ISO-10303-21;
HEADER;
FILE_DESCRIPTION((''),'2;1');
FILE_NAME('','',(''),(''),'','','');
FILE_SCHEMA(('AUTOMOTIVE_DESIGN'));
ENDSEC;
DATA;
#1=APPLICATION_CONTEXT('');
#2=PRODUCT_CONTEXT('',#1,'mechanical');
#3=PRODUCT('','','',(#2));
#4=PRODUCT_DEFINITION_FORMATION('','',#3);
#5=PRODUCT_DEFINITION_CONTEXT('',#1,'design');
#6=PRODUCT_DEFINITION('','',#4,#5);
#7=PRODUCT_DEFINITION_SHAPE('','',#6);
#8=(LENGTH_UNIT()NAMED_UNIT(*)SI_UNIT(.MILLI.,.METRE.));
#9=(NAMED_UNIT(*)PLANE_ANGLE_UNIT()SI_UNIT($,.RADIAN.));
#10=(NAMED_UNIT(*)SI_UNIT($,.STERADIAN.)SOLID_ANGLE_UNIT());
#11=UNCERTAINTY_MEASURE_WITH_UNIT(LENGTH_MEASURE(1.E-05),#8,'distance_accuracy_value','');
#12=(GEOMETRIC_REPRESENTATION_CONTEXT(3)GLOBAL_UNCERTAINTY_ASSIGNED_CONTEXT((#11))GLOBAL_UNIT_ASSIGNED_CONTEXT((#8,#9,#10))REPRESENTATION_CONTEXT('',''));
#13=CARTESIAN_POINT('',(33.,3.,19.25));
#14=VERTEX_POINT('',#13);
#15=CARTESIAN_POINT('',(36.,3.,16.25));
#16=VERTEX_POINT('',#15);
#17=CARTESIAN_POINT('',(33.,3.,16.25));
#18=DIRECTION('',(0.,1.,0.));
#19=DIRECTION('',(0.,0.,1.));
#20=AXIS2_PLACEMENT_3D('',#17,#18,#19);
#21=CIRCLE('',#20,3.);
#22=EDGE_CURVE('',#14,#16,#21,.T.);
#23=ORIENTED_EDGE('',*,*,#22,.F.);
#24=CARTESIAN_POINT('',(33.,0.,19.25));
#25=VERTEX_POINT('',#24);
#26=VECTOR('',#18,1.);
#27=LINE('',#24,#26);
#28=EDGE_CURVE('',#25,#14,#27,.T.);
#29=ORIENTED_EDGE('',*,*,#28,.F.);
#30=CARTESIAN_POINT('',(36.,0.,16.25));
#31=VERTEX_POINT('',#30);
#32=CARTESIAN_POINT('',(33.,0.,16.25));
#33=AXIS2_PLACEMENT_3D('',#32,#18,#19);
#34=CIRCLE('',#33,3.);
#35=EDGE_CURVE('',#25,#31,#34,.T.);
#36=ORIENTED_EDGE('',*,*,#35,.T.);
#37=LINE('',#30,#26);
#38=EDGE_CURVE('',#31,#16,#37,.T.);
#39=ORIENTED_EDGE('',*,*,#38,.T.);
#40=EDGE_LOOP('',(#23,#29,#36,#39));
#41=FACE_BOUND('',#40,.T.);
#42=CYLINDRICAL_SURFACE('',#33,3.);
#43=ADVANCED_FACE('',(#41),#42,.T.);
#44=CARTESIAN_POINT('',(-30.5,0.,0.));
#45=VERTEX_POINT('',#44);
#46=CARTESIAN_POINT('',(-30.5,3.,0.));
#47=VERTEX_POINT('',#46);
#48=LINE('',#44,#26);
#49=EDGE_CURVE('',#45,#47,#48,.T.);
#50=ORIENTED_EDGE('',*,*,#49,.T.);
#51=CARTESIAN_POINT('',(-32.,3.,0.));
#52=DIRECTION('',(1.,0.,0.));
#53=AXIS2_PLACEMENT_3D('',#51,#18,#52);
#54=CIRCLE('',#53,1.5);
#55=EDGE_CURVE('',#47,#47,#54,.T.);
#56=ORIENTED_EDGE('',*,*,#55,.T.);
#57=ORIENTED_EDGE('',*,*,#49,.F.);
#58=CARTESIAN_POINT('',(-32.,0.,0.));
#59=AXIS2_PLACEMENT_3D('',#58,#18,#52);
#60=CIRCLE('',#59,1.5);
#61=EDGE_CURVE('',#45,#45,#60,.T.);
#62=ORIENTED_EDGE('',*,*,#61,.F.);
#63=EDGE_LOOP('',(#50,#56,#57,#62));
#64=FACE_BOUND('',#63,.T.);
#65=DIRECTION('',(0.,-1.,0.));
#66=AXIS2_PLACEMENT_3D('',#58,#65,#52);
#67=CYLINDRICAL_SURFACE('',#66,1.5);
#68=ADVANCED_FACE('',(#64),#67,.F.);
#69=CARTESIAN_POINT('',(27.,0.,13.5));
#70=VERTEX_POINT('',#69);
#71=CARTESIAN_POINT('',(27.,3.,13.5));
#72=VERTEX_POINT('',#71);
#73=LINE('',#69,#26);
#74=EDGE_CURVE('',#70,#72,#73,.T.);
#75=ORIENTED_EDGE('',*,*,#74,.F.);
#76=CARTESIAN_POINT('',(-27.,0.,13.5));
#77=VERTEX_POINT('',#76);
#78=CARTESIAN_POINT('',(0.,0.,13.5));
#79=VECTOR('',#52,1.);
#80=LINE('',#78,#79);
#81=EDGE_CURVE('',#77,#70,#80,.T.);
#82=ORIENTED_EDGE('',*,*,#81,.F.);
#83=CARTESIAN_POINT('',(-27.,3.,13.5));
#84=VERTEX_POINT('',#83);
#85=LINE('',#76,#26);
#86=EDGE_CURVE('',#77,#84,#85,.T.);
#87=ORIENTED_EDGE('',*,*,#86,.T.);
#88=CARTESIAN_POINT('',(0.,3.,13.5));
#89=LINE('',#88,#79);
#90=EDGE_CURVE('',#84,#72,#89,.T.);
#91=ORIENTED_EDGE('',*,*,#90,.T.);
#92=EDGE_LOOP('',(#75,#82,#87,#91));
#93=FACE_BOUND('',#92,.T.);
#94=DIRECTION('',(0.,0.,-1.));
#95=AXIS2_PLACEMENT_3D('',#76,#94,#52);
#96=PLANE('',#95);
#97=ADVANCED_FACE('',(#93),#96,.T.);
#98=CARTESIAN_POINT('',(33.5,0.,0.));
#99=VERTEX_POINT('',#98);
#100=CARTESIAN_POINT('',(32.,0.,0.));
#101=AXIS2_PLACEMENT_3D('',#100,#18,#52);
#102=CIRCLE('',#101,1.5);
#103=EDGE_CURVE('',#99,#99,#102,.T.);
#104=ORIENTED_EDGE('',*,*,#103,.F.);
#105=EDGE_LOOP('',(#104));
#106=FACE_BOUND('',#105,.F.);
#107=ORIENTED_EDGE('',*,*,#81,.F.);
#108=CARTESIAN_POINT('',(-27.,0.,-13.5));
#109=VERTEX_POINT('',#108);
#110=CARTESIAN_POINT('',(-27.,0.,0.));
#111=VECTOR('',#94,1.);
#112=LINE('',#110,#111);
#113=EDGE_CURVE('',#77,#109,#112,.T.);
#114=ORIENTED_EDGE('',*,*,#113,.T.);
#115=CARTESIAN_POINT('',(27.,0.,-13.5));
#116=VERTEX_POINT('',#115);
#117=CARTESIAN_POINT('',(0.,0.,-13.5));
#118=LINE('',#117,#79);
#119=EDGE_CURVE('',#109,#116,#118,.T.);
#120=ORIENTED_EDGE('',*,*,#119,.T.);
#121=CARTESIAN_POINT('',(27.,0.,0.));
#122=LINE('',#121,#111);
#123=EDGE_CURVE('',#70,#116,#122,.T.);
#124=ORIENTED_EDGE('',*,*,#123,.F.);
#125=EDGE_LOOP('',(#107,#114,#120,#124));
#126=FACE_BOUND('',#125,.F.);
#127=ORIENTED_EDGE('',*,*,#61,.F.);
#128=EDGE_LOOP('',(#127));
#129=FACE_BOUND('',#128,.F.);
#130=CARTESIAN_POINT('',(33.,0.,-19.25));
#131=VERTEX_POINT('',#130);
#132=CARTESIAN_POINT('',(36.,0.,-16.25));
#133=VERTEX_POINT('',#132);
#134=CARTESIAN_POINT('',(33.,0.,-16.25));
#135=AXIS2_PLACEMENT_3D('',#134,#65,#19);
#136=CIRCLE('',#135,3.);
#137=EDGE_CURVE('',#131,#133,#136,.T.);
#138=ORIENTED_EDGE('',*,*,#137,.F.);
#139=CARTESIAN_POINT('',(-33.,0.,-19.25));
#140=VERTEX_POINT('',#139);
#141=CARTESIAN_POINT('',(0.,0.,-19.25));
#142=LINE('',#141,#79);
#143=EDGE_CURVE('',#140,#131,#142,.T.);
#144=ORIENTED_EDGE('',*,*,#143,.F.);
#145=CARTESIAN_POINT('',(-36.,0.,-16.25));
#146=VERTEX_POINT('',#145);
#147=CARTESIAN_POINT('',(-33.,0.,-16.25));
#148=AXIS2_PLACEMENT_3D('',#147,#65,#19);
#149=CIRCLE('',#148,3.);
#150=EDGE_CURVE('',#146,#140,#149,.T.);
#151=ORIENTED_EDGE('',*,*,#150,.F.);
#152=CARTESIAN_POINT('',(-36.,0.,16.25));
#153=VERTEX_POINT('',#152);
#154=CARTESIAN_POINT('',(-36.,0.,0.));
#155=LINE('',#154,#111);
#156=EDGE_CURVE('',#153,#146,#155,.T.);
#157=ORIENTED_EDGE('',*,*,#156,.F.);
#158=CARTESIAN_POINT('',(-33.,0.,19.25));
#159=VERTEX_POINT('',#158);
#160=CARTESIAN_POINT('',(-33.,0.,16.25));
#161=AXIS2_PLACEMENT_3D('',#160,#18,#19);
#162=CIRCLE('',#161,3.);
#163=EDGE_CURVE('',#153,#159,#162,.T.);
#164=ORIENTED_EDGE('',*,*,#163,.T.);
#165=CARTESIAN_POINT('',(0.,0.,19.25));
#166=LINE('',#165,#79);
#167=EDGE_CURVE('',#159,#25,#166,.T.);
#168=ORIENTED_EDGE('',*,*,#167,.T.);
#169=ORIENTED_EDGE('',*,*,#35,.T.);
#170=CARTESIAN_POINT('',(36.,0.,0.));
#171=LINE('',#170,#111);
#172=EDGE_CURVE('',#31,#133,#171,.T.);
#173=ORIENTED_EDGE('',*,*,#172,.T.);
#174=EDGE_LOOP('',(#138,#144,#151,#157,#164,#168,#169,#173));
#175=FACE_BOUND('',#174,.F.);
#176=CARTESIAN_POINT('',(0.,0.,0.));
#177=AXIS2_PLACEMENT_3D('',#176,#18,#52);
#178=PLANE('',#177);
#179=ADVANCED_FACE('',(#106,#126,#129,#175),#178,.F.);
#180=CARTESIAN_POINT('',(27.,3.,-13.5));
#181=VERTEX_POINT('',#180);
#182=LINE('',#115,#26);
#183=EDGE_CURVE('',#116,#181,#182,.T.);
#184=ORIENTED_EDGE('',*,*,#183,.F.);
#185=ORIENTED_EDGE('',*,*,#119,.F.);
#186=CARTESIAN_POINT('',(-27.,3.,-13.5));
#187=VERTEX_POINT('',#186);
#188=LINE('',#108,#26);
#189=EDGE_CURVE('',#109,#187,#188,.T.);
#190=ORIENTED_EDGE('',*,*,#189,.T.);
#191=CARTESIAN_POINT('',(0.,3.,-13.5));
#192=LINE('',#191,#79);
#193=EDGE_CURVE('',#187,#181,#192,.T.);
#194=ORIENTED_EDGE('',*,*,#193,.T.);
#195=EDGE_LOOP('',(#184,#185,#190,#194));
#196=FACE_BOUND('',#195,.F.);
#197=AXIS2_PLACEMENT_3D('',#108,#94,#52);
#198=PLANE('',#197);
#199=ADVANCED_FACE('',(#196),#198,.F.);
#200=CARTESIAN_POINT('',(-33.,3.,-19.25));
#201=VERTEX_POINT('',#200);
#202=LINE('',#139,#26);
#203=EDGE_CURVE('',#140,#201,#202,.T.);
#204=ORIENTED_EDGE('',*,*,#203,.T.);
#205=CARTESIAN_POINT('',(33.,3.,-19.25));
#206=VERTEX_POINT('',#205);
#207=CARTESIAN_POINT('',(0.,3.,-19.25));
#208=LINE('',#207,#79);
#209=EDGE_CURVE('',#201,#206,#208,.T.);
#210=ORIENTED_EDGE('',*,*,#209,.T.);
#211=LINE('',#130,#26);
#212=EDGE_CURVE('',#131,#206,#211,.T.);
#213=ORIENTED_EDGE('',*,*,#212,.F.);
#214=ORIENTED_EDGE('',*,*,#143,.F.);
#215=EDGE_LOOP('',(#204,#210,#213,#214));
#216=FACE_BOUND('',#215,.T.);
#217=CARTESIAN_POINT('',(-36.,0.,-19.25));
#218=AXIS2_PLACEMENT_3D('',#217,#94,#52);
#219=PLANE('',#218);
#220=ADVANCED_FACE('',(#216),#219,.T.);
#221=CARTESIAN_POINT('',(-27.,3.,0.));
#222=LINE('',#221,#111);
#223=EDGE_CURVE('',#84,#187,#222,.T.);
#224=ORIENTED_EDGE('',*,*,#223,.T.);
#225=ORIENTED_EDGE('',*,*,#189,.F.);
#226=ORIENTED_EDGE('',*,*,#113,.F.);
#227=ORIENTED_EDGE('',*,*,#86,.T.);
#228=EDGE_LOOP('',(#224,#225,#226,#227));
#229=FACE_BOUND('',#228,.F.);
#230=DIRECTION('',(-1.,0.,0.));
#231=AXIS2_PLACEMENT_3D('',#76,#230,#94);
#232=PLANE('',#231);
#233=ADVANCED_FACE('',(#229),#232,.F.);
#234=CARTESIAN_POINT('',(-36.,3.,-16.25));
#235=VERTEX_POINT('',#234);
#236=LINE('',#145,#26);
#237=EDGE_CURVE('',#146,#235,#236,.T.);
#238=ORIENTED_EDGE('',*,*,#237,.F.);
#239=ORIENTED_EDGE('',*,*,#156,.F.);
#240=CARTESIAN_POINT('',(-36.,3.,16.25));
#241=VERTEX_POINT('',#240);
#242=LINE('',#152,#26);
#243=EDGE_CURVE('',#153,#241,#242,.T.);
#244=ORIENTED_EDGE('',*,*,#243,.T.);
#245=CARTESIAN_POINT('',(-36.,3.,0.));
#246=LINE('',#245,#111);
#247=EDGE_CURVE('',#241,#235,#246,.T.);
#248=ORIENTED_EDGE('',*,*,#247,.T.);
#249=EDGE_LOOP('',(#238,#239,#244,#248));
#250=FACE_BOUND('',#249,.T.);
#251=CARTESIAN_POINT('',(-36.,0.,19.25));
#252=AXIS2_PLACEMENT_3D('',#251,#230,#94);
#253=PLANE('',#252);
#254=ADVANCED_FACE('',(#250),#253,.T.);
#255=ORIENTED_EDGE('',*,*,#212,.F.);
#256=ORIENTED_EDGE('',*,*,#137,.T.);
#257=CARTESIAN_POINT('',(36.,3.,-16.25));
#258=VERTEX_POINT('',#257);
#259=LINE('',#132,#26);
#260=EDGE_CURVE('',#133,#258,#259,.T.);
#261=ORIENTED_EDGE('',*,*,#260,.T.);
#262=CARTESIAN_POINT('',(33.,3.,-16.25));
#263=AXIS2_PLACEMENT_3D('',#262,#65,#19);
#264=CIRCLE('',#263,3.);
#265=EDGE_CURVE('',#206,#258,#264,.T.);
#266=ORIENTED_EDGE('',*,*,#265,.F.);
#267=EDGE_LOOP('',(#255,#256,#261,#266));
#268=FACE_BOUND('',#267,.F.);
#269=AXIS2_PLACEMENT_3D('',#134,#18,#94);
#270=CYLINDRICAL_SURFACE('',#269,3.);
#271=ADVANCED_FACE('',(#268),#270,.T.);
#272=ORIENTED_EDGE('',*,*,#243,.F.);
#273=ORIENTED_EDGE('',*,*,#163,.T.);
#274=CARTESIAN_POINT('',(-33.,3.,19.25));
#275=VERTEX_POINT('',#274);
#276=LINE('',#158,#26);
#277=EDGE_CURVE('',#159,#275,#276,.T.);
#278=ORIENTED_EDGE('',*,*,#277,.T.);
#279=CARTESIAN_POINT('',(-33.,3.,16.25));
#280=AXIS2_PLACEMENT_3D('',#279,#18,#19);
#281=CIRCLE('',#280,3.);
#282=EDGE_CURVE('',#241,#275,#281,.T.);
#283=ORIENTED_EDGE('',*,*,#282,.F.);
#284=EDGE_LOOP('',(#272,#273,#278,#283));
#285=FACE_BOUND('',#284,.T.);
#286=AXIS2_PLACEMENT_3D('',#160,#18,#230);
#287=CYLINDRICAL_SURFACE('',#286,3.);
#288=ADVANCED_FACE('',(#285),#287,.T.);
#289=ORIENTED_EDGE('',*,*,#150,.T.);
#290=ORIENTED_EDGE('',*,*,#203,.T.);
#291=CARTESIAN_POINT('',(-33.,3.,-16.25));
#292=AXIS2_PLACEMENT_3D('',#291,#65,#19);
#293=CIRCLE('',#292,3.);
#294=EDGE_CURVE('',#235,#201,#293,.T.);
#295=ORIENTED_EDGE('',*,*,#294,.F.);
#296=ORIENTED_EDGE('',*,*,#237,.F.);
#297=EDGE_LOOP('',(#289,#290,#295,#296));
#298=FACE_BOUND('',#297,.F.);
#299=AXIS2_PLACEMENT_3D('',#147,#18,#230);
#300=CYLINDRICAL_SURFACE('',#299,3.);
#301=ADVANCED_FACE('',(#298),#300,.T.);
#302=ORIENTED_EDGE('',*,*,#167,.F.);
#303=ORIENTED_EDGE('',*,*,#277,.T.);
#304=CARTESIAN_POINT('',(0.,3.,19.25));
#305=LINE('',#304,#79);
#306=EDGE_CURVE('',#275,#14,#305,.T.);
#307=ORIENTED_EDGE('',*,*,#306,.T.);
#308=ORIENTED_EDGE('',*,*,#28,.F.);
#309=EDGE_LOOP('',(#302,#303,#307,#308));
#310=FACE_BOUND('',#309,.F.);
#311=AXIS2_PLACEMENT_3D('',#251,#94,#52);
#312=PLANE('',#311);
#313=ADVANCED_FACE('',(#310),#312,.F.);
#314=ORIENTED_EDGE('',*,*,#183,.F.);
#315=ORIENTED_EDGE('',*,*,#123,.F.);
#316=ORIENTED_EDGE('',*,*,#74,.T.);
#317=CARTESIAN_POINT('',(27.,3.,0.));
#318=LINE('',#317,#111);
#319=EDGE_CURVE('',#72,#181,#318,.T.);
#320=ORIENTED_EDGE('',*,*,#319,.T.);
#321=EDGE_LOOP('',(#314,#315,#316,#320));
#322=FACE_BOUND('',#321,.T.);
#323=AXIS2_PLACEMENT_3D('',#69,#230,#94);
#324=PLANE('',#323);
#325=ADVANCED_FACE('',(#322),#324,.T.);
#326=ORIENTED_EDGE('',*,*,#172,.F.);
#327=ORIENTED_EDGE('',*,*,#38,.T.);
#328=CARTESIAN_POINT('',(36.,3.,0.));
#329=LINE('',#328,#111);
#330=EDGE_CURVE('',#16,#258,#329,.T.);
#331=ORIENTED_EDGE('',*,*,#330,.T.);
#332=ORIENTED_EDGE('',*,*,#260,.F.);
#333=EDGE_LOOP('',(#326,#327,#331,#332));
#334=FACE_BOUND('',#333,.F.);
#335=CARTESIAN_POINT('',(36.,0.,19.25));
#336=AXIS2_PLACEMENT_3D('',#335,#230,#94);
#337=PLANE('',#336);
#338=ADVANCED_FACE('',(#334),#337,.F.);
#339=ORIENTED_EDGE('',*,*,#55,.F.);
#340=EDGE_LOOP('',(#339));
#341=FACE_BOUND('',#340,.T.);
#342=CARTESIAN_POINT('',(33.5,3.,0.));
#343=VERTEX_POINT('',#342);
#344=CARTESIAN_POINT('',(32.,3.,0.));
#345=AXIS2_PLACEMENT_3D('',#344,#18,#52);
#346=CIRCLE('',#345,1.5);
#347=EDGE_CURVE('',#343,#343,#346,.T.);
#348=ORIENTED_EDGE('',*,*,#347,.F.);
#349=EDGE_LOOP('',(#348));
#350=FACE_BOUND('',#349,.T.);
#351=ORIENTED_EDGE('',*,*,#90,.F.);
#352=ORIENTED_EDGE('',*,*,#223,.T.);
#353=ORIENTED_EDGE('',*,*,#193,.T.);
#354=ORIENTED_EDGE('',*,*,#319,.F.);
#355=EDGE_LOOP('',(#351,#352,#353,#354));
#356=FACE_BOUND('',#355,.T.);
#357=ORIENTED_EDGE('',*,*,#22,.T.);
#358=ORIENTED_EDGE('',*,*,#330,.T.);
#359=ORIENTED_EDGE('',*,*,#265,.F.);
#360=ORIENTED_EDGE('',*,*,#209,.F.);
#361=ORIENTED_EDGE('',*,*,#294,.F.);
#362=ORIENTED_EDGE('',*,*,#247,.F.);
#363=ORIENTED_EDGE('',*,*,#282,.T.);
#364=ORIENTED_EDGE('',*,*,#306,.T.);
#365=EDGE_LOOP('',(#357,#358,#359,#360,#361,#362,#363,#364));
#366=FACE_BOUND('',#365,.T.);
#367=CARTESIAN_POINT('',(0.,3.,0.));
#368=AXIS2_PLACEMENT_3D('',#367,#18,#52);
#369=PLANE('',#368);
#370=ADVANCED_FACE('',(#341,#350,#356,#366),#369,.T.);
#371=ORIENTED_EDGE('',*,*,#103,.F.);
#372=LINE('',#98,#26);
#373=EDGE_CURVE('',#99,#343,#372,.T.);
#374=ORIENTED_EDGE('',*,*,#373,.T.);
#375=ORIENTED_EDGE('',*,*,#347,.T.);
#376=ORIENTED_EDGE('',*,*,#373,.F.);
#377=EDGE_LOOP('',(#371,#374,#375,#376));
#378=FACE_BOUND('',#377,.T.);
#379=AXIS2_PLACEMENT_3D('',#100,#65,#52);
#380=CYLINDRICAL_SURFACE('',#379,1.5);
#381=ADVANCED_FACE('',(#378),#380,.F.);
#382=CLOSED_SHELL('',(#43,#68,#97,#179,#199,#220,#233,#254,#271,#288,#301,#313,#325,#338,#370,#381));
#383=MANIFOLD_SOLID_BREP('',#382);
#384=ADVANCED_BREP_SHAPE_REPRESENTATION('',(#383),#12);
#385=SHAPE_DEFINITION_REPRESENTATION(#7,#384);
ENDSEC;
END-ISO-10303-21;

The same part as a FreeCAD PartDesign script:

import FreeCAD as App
import Part
import Sketcher


def edges_at(feature, points):
    """Names of the edges that pass closest to the given points."""
    edges = feature.Shape.Edges
    near = lambda p: min(range(len(edges)), key=lambda i: edges[i].distToShape(Part.Vertex(*p))[0])
    return sorted({f"Edge{near(p) + 1}" for p in points})


def add_polygon(sketch, points):
    """Adds a closed chain of lines whose ends are joined by coincident constraints."""
    first, n = sketch.GeometryCount, len(points)
    for a, b in zip(points, points[1:] + points[:1]):
        sketch.addGeometry(Part.LineSegment(App.Vector(*a, 0), App.Vector(*b, 0)), False)
    for i in range(n):
        sketch.addConstraint(Sketcher.Constraint("Coincident", first + i, 2, first + (i + 1) % n, 1))

doc = App.newDocument("Part")
params = doc.addObject("Spreadsheet::Sheet", "Params")
for row, (alias, value) in enumerate([
    ("sketch1_diameter", "3 mm"),
    ("sketch1_width", "72 mm"),
    ("sketch1_width2", "54 mm"),
    ("sketch1_height", "27 mm"),
    ("sketch1_height2", "38.5 mm"),
    ("pad1_length", "3 mm"),
    ("fillet_radius", "3 mm"),
], start=1):
    params.set(f"A{row}", alias)
    params.set(f"B{row}", "=" + value)
    params.setAlias(f"B{row}", alias)

body = doc.addObject("PartDesign::Body", "Body")

sketch1 = doc.addObject("Sketcher::SketchObject", "Sketch")
body.addObject(sketch1)
sketch1.AttachmentSupport = (doc.XZ_Plane, [""])
sketch1.MapMode = "FlatFace"
add_polygon(sketch1, [(-36, -19.25), (-36, 19.25), (36, 19.25), (36, -19.25)])
sketch1.addGeometry(Part.Circle(App.Vector(-32, 0, 0), App.Vector(0, 0, 1), 1.5), False)
add_polygon(sketch1, [(27, 13.5), (-27, 13.5), (-27, -13.5), (27, -13.5)])
sketch1.addGeometry(Part.Circle(App.Vector(32, 0, 0), App.Vector(0, 0, 1), 1.5), False)
sketch1.addConstraint([
    Sketcher.Constraint("Vertical", 0),
    Sketcher.Constraint("Horizontal", 1),
    Sketcher.Constraint("Vertical", 2),
    Sketcher.Constraint("Horizontal", 3),
    Sketcher.Constraint("Horizontal", 5),
    Sketcher.Constraint("Vertical", 6),
    Sketcher.Constraint("Horizontal", 7),
    Sketcher.Constraint("Vertical", 8),
    Sketcher.Constraint("Equal", 4, 9),
    Sketcher.Constraint("Symmetric", 4, 3, 9, 3, -1, 1),
    Sketcher.Constraint("Symmetric", 0, 2, 2, 2, -1, 1),
    Sketcher.Constraint("Symmetric", 5, 2, 7, 2, -1, 1),
    Sketcher.Constraint("PointOnObject", 4, 3, -1),
    Sketcher.Constraint("Diameter", 4, 3.0),
    Sketcher.Constraint("DistanceX", 1, 1, 1, 2, 72.0),
    Sketcher.Constraint("DistanceX", 5, 2, 5, 1, 54.0),
    Sketcher.Constraint("DistanceY", 6, 2, 6, 1, 27.0),
    Sketcher.Constraint("DistanceY", 0, 1, 0, 2, 38.5),
    Sketcher.Constraint("DistanceX", 4, 3, -1, 1, 32.0),
])
sketch1.setExpression("Constraints[21]", "Params.sketch1_diameter")
sketch1.setExpression("Constraints[22]", "Params.sketch1_width")
sketch1.setExpression("Constraints[23]", "Params.sketch1_width2")
sketch1.setExpression("Constraints[24]", "Params.sketch1_height")
sketch1.setExpression("Constraints[25]", "Params.sketch1_height2")
pad1 = doc.addObject("PartDesign::Pad", "Pad")
body.addObject(pad1)
pad1.Profile = sketch1
pad1.setExpression("Length", "Params.pad1_length")
pad1.Reversed = True
doc.recompute()

fillet = doc.addObject("PartDesign::Fillet", "Fillet")
body.addObject(fillet)
fillet.Base = (pad1, edges_at(pad1, [
    (-36, 1.5, -19.25),
    (36, 1.5, -19.25),
    (36, 1.5, 19.25),
    (-36, 1.5, 19.25),
]))
fillet.setExpression("Radius", "Params.fillet_radius")

doc.recompute()
